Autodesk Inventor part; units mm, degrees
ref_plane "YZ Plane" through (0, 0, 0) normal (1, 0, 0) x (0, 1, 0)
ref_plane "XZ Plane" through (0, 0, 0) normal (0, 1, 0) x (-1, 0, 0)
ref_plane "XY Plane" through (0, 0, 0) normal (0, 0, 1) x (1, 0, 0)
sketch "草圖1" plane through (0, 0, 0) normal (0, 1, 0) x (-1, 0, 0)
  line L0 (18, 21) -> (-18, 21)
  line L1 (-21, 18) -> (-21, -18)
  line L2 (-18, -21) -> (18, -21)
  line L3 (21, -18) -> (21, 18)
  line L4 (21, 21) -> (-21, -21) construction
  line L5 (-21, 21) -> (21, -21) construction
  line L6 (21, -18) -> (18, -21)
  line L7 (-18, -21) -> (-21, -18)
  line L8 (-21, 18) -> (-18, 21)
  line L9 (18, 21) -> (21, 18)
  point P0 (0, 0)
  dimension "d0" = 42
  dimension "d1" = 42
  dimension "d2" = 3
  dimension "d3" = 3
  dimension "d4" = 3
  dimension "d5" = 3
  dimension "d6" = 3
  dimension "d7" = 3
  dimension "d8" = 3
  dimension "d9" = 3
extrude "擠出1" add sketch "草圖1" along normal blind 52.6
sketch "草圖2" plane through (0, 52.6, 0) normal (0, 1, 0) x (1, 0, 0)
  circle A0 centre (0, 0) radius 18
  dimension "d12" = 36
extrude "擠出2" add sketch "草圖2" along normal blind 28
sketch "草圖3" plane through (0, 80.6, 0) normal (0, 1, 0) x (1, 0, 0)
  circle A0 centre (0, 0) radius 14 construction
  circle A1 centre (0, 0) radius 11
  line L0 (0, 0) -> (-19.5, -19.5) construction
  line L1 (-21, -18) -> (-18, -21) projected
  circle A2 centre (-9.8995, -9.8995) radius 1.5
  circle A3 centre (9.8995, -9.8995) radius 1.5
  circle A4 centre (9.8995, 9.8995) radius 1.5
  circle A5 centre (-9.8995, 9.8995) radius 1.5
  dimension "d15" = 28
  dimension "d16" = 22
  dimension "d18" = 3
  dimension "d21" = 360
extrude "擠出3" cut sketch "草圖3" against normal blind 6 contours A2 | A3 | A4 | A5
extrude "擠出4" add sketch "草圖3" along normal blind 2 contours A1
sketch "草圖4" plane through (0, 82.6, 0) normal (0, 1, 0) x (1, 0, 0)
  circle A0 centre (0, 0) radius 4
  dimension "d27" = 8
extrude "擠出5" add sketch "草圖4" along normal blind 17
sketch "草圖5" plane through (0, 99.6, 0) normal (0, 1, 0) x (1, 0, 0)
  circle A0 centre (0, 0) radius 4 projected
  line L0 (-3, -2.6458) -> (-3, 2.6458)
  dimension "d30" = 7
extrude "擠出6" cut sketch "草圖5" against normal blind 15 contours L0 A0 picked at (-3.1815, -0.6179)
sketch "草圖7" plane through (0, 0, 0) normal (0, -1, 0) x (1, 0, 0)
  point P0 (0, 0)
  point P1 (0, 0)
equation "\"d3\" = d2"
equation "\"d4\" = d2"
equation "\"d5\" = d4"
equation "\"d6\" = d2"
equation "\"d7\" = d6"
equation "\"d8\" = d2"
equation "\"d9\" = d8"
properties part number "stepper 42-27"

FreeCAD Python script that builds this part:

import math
import FreeCAD as App
import Part
import Sketcher
from FreeCAD import Vector
Q = App.Units.Quantity


def add_polygon(sketch, points):
    """Adds a closed chain of lines whose ends are joined by coincident constraints."""
    first, n = sketch.GeometryCount, len(points)
    for a, b in zip(points, points[1:] + points[:1]):
        sketch.addGeometry(Part.LineSegment(App.Vector(*a, 0), App.Vector(*b, 0)), False)
    for i in range(n):
        sketch.addConstraint(Sketcher.Constraint("Coincident", first + i, 2, first + (i + 1) % n, 1))

doc = App.newDocument("Part")
body = doc.addObject("PartDesign::Body", "Body")

# Sketch on XZ plane
sketch1 = doc.addObject("Sketcher::SketchObject", "Sketch")
body.addObject(sketch1)
sketch1.AttachmentSupport = (doc.XZ_Plane, [""])
sketch1.MapMode = "FlatFace"
add_polygon(sketch1, [(-21, 18), (-18, 21), (18, 21), (21, 18), (21, -18), (18, -21), (-18, -21), (-21, -18)])  # lines 0-7
sketch1.addConstraint(Sketcher.Constraint("Horizontal", 1))
sketch1.addConstraint(Sketcher.Constraint("Vertical", 3))
sketch1.addConstraint(Sketcher.Constraint("Horizontal", 5))
sketch1.addConstraint(Sketcher.Constraint("Vertical", 7))
sketch1.addConstraint(Sketcher.Constraint("Symmetric", 0, 2, 4, 2, -1, 1))
sketch1.addConstraint(Sketcher.Constraint("Symmetric", 2, 2, 6, 2, -1, 1))
sketch1.addConstraint(Sketcher.Constraint("Perpendicular", 0, 2))
sketch1.addConstraint(Sketcher.Constraint("Perpendicular", 2, 4))
sketch1.addConstraint(Sketcher.Constraint("Perpendicular", 4, 6))
sketch1.addConstraint(Sketcher.Constraint("Horizontal", 3, 2, 6, 2))
sketch1.addConstraint(Sketcher.Constraint("Vertical", 1, 2, 4, 2))
sketch1.addConstraint(Sketcher.Constraint("Equal", 5, 3))
sketch1.addConstraint(Sketcher.Constraint("DistanceX", 1, 2, 2, 2, Q("3 mm")))
sketch1.addConstraint(Sketcher.Constraint("DistanceY", 4, 2, 1, 2, Q("42 mm")))
pad1 = doc.addObject("PartDesign::Pad", "Pad")
body.addObject(pad1)
pad1.Profile = sketch1
pad1.Length = 52.6
pad1.Reversed = True

# Sketch on XZ plane
sketch2 = doc.addObject("Sketcher::SketchObject", "Sketch001")
body.addObject(sketch2)
sketch2.AttachmentSupport = (doc.XZ_Plane, [""])
sketch2.MapMode = "FlatFace"
sketch2.AttachmentOffset = App.Placement(Vector(0, 0, -52.6), App.Rotation())
sketch2.addGeometry(Part.Circle(Vector(0, 0, 0), Vector(0, 0, 1), 18), False)
sketch2.addConstraint(Sketcher.Constraint("Coincident", 0, 3, -1, 1))
sketch2.addConstraint(Sketcher.Constraint("Diameter", 0, Q("36 mm")))
pad2 = doc.addObject("PartDesign::Pad", "Pad001")
body.addObject(pad2)
pad2.Profile = sketch2
pad2.Length = 28
pad2.Reversed = True

# Sketch on XZ plane
sketch3 = doc.addObject("Sketcher::SketchObject", "Sketch002")
body.addObject(sketch3)
sketch3.AttachmentSupport = (doc.XZ_Plane, [""])
sketch3.MapMode = "FlatFace"
sketch3.AttachmentOffset = App.Placement(Vector(0, 0, -80.6), App.Rotation())
sketch3.addGeometry(Part.Circle(Vector(-9.9, 9.9, 0), Vector(0, 0, 1), 1.5), False)
sketch3.addGeometry(Part.Circle(Vector(9.9, 9.9, 0), Vector(0, 0, 1), 1.5), False)
sketch3.addGeometry(Part.Circle(Vector(9.9, -9.9, 0), Vector(0, 0, 1), 1.5), False)
sketch3.addGeometry(Part.Circle(Vector(-9.9, -9.9, 0), Vector(0, 0, 1), 1.5), False)
sketch3.addConstraint(Sketcher.Constraint("Equal", 0, 1))
sketch3.addConstraint(Sketcher.Constraint("Equal", 1, 2))
sketch3.addConstraint(Sketcher.Constraint("Equal", 2, 3))
sketch3.addConstraint(Sketcher.Constraint("Symmetric", 0, 3, 2, 3, -1, 1))
sketch3.addConstraint(Sketcher.Constraint("Symmetric", 1, 3, 3, 3, -1, 1))
sketch3.addConstraint(Sketcher.Constraint("Symmetric", 0, 3, 1, 3, -2))
sketch3.addConstraint(Sketcher.Constraint("Diameter", 0, Q("3 mm")))
sketch3.addConstraint(Sketcher.Constraint("DistanceX", 0, 3, 1, 3, Q("19.799 mm")))
sketch3.addConstraint(Sketcher.Constraint("DistanceY", 2, 3, 1, 3, Q("19.799 mm")))
pocket1 = doc.addObject("PartDesign::Pocket", "Pocket")
body.addObject(pocket1)
pocket1.Profile = sketch3
pocket1.Length = 6
pocket1.Reversed = True

# Sketch on XZ plane
sketch4 = doc.addObject("Sketcher::SketchObject", "Sketch003")
body.addObject(sketch4)
sketch4.AttachmentSupport = (doc.XZ_Plane, [""])
sketch4.MapMode = "FlatFace"
sketch4.AttachmentOffset = App.Placement(Vector(0, 0, -80.6), App.Rotation())
sketch4.addGeometry(Part.Circle(Vector(0, 0, 0), Vector(0, 0, 1), 11), False)
sketch4.addConstraint(Sketcher.Constraint("Coincident", 0, 3, -1, 1))
sketch4.addConstraint(Sketcher.Constraint("Diameter", 0, Q("22 mm")))
pad3 = doc.addObject("PartDesign::Pad", "Pad002")
body.addObject(pad3)
pad3.Profile = sketch4
pad3.Length = 2
pad3.Reversed = True

# Sketch on XZ plane
sketch5 = doc.addObject("Sketcher::SketchObject", "Sketch004")
body.addObject(sketch5)
sketch5.AttachmentSupport = (doc.XZ_Plane, [""])
sketch5.MapMode = "FlatFace"
sketch5.AttachmentOffset = App.Placement(Vector(0, 0, -82.6), App.Rotation())
sketch5.addGeometry(Part.Circle(Vector(0, 0, 0), Vector(0, 0, 1), 4), False)
sketch5.addConstraint(Sketcher.Constraint("Coincident", 0, 3, -1, 1))
sketch5.addConstraint(Sketcher.Constraint("Diameter", 0, Q("8 mm")))
pad4 = doc.addObject("PartDesign::Pad", "Pad003")
body.addObject(pad4)
pad4.Profile = sketch5
pad4.Length = 17
pad4.Reversed = True

# Sketch on XZ plane
sketch6 = doc.addObject("Sketcher::SketchObject", "Sketch005")
body.addObject(sketch6)
sketch6.AttachmentSupport = (doc.XZ_Plane, [""])
sketch6.MapMode = "FlatFace"
sketch6.AttachmentOffset = App.Placement(Vector(0, 0, -99.6), App.Rotation())
sketch6.addGeometry(Part.LineSegment(Vector(-3, 2.6, 0), Vector(-3, -2.6, 0)), False)
sketch6.addGeometry(Part.ArcOfCircle(Part.Circle(Vector(0, 0, 0), Vector(0, 0, 1), 4), math.radians(139), math.radians(221)), False)
sketch6.addConstraint(Sketcher.Constraint("Coincident", 0, 1, 1, 1))
sketch6.addConstraint(Sketcher.Constraint("Coincident", 1, 2, 0, 2))
sketch6.addConstraint(Sketcher.Constraint("Vertical", 0))
sketch6.addConstraint(Sketcher.Constraint("Coincident", 1, 3, -1, 1))
sketch6.addConstraint(Sketcher.Constraint("Radius", 1, Q("4 mm")))
sketch6.addConstraint(Sketcher.Constraint("DistanceX", 0, 1, -1, 1, Q("3 mm")))
pocket2 = doc.addObject("PartDesign::Pocket", "Pocket001")
body.addObject(pocket2)
pocket2.Profile = sketch6
pocket2.Length = 15
pocket2.Reversed = True

doc.recompute()
